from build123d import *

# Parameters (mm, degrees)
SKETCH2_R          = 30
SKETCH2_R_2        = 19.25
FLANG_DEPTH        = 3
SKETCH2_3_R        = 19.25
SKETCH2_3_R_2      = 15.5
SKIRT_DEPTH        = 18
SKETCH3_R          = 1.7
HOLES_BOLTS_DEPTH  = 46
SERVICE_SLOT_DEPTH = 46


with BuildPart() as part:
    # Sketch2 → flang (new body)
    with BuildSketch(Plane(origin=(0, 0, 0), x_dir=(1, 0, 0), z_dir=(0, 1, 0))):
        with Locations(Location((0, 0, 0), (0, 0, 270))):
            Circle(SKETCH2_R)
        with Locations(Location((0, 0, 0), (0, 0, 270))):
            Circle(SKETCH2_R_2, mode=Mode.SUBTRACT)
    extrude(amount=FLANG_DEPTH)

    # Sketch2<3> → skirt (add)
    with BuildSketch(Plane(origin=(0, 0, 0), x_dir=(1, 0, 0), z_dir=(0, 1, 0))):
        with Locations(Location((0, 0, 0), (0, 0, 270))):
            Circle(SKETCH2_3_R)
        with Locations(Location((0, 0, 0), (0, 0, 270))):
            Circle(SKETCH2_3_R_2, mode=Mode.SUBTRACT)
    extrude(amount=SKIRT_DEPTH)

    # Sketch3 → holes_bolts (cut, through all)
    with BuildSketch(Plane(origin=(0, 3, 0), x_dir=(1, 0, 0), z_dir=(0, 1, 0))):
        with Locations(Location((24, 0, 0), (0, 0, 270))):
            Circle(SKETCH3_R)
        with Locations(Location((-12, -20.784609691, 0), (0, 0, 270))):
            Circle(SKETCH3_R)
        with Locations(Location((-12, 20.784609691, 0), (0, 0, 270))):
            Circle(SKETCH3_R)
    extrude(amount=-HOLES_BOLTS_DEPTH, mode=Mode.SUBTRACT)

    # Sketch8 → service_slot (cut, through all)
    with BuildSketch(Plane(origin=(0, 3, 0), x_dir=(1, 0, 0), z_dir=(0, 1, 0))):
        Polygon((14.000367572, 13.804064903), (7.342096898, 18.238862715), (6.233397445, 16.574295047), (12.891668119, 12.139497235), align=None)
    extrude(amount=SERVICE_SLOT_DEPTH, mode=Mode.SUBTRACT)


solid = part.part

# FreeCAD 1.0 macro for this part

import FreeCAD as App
import Part
import Sketcher
from FreeCAD import Vector
Q = App.Units.Quantity


def add_polygon(sketch, points):
    """Adds a closed chain of lines whose ends are joined by coincident constraints."""
    first, n = sketch.GeometryCount, len(points)
    for a, b in zip(points, points[1:] + points[:1]):
        sketch.addGeometry(Part.LineSegment(App.Vector(*a, 0), App.Vector(*b, 0)), False)
    for i in range(n):
        sketch.addConstraint(Sketcher.Constraint("Coincident", first + i, 2, first + (i + 1) % n, 1))

doc = App.newDocument("Part")
params = doc.addObject("Spreadsheet::Sheet", "Params")
for row, (alias, value) in enumerate([
    ("sketch1_diameter", "60 mm"),
    ("sketch1_diameter2", "38.5 mm"),
    ("pad1_length", "3 mm"),
    ("sketch2_diameter", "31 mm"),
    ("sketch2_diameter2", "38.5 mm"),
    ("pad2_length", "18 mm"),
    ("sketch3_diameter", "3.4 mm"),
    ("sketch4_length", "8 mm"),
    ("sketch4_length2", "2 mm"),
], start=1):
    params.set(f"A{row}", alias)
    params.set(f"B{row}", "=" + value)
    params.setAlias(f"B{row}", alias)

body = doc.addObject("PartDesign::Body", "Body")

sketch1 = doc.addObject("Sketcher::SketchObject", "Sketch")
body.addObject(sketch1)
sketch1.AttachmentSupport = (doc.XZ_Plane, [""])
sketch1.MapMode = "FlatFace"
sketch1.addGeometry(Part.Circle(Vector(0, 0, 0), Vector(0, 0, 1), 30), False)
sketch1.addGeometry(Part.Circle(Vector(0, 0, 0), Vector(0, 0, 1), 19), False)
sketch1.addConstraint(Sketcher.Constraint("Coincident", 0, 3, -1, 1))
sketch1.addConstraint(Sketcher.Constraint("Coincident", 1, 3, -1, 1))
sketch1.addConstraint(Sketcher.Constraint("Diameter", 0, Q("60 mm")))
sketch1.addConstraint(Sketcher.Constraint("Diameter", 1, Q("38.5 mm")))
sketch1.setExpression("Constraints[2]", "Params.sketch1_diameter")
sketch1.setExpression("Constraints[3]", "Params.sketch1_diameter2")
pad1 = doc.addObject("PartDesign::Pad", "Pad")
body.addObject(pad1)
pad1.Profile = sketch1
pad1.setExpression("Length", "Params.pad1_length")
pad1.Reversed = True

sketch2 = doc.addObject("Sketcher::SketchObject", "Sketch001")
body.addObject(sketch2)
sketch2.AttachmentSupport = (doc.XZ_Plane, [""])
sketch2.MapMode = "FlatFace"
sketch2.addGeometry(Part.Circle(Vector(0, 0, 0), Vector(0, 0, 1), 19), False)
sketch2.addGeometry(Part.Circle(Vector(0, 0, 0), Vector(0, 0, 1), 16), False)
sketch2.addConstraint(Sketcher.Constraint("Coincident", 0, 3, -1, 1))
sketch2.addConstraint(Sketcher.Constraint("Coincident", 1, 3, -1, 1))
sketch2.addConstraint(Sketcher.Constraint("Diameter", 1, Q("31 mm")))
sketch2.addConstraint(Sketcher.Constraint("Diameter", 0, Q("38.5 mm")))
sketch2.setExpression("Constraints[2]", "Params.sketch2_diameter")
sketch2.setExpression("Constraints[3]", "Params.sketch2_diameter2")
pad2 = doc.addObject("PartDesign::Pad", "Pad001")
body.addObject(pad2)
pad2.Profile = sketch2
pad2.setExpression("Length", "Params.pad2_length")
pad2.Reversed = True

sketch3 = doc.addObject("Sketcher::SketchObject", "Sketch002")
body.addObject(sketch3)
sketch3.AttachmentSupport = (doc.XZ_Plane, [""])
sketch3.MapMode = "FlatFace"
sketch3.AttachmentOffset = App.Placement(Vector(0, 0, -3), App.Rotation())
sketch3.addGeometry(Part.Circle(Vector(24, 0, 0), Vector(0, 0, 1), 1.7), False)
sketch3.addGeometry(Part.Circle(Vector(-12, 20.8, 0), Vector(0, 0, 1), 1.7), False)
sketch3.addGeometry(Part.Circle(Vector(-12, -20.8, 0), Vector(0, 0, 1), 1.7), False)
sketch3.addConstraint(Sketcher.Constraint("Equal", 0, 1))
sketch3.addConstraint(Sketcher.Constraint("Equal", 1, 2))
sketch3.addConstraint(Sketcher.Constraint("Symmetric", 1, 3, 2, 3, -1))
sketch3.addConstraint(Sketcher.Constraint("PointOnObject", 0, 3, -1))
sketch3.addConstraint(Sketcher.Constraint("Diameter", 0, Q("3.4 mm")))
sketch3.addConstraint(Sketcher.Constraint("DistanceX", -1, 1, 0, 3, Q("24 mm")))
sketch3.addConstraint(Sketcher.Constraint("DistanceX", 1, 3, -1, 1, Q("12 mm")))
sketch3.addConstraint(Sketcher.Constraint("DistanceY", -1, 1, 1, 3, Q("20.78461 mm")))
sketch3.setExpression("Constraints[4]", "Params.sketch3_diameter")
pocket1 = doc.addObject("PartDesign::Pocket", "Pocket")
body.addObject(pocket1)
pocket1.Profile = sketch3
pocket1.Type = "ThroughAll"
pocket1.Reversed = True

sketch4 = doc.addObject("Sketcher::SketchObject", "Sketch003")
body.addObject(sketch4)
sketch4.AttachmentSupport = (doc.XZ_Plane, [""])
sketch4.MapMode = "FlatFace"
sketch4.AttachmentOffset = App.Placement(Vector(0, 0, -3), App.Rotation())
add_polygon(sketch4, [(14, -13.8), (7.3, -18.2), (6.2, -16.6), (12.9, -12.1)])
sketch4.addConstraint(Sketcher.Constraint("Perpendicular", 0, 1))
sketch4.addConstraint(Sketcher.Constraint("Perpendicular", 1, 2))
sketch4.addConstraint(Sketcher.Constraint("Perpendicular", 2, 3))
sketch4.addConstraint(Sketcher.Constraint("Distance", 0, Q("8 mm")))
sketch4.addConstraint(Sketcher.Constraint("Distance", 1, Q("2 mm")))
sketch4.addConstraint(Sketcher.Constraint("DistanceX", 1, 2, 0, 2, Q("1.108699 mm")))
sketch4.addConstraint(Sketcher.Constraint("DistanceX", -1, 1, 2, 2, Q("12.891668 mm")))
sketch4.addConstraint(Sketcher.Constraint("DistanceY", 0, 2, -1, 1, Q("18.238863 mm")))
sketch4.setExpression("Constraints[7]", "Params.sketch4_length")
sketch4.setExpression("Constraints[8]", "Params.sketch4_length2")
pocket2 = doc.addObject("PartDesign::Pocket", "Pocket001")
body.addObject(pocket2)
pocket2.Profile = sketch4
pocket2.Type = "ThroughAll"

doc.recompute()
